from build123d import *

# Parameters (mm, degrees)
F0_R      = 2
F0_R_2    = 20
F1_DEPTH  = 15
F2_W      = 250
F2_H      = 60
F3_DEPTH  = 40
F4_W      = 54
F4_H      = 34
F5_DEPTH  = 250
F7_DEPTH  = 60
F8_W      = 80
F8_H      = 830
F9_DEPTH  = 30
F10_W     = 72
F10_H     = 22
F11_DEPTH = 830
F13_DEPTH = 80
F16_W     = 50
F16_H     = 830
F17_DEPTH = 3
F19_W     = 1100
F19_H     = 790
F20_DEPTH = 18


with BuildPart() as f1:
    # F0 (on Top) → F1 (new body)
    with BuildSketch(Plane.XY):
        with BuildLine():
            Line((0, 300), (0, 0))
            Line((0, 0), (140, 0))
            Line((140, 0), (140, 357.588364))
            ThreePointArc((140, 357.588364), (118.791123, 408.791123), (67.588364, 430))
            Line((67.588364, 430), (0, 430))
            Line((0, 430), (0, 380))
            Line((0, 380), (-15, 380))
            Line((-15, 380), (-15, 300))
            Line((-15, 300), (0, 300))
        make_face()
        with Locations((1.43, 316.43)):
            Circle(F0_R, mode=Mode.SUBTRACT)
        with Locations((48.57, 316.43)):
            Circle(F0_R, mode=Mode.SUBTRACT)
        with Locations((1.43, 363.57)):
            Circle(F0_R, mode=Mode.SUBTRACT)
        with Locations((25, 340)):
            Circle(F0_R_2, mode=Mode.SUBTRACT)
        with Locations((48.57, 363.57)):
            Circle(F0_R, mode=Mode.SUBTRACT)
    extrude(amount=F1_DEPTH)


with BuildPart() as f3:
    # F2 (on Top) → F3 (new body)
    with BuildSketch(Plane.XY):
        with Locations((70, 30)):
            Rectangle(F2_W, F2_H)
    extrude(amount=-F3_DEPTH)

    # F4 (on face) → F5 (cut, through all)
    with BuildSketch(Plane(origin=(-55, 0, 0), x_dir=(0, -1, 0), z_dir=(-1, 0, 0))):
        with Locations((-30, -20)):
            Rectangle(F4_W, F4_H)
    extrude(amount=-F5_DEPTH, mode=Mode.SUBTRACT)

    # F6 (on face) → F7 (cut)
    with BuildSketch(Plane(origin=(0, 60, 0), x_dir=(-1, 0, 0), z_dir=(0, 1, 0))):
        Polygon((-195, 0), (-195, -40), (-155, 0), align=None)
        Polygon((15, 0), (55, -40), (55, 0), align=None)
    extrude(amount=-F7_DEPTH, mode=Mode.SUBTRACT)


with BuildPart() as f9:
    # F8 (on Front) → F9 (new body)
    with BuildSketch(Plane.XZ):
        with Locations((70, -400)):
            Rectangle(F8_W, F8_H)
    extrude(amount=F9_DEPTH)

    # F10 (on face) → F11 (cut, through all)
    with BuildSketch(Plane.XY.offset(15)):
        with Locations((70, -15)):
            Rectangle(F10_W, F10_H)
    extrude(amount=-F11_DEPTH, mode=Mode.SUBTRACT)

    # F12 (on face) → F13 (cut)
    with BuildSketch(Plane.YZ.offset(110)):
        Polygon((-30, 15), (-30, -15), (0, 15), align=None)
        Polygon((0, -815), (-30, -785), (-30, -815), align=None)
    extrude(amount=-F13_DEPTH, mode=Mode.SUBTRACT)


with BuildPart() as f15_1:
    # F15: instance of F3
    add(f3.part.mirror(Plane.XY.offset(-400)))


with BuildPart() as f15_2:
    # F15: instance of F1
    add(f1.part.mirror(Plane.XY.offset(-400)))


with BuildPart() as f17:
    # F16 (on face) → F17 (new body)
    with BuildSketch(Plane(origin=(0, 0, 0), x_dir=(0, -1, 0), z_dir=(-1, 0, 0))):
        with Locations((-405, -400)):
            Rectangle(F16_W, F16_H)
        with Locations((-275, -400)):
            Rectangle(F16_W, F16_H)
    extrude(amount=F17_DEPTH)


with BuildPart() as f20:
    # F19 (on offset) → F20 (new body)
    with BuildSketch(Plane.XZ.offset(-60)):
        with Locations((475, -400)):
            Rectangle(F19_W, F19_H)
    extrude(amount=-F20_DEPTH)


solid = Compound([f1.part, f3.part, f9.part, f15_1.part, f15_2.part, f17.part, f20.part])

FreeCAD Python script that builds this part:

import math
import FreeCAD as App
import Part
import Sketcher

doc = App.newDocument("Part")
body = doc.addObject("PartDesign::Body", "Body")

# Sketch on XY plane
sketch1 = doc.addObject("Sketcher::SketchObject", "Sketch")
body.addObject(sketch1)
sketch1.AttachmentSupport = (doc.XY_Plane, [""])
sketch1.MapMode = "FlatFace"
sketch1.addGeometry(Part.LineSegment(App.Vector(0, 300, 0), App.Vector(0, 0, 0)), False)
sketch1.addGeometry(Part.LineSegment(App.Vector(0, 0, 0), App.Vector(140, 0, 0)), False)
sketch1.addGeometry(Part.LineSegment(App.Vector(140, 0, 0), App.Vector(140, 357.6, 0)), False)
sketch1.addGeometry(Part.ArcOfCircle(Part.Circle(App.Vector(67.6, 357.6, 0), App.Vector(0, 0, 1), 72.4), math.radians(0), math.radians(90)), False)
sketch1.addGeometry(Part.LineSegment(App.Vector(67.6, 430, 0), App.Vector(0, 430, 0)), False)
sketch1.addGeometry(Part.LineSegment(App.Vector(0, 430, 0), App.Vector(0, 380, 0)), False)
sketch1.addGeometry(Part.LineSegment(App.Vector(0, 380, 0), App.Vector(-15, 380, 0)), False)
sketch1.addGeometry(Part.LineSegment(App.Vector(-15, 380, 0), App.Vector(-15, 300, 0)), False)
sketch1.addGeometry(Part.LineSegment(App.Vector(-15, 300, 0), App.Vector(0, 300, 0)), False)
sketch1.addGeometry(Part.Circle(App.Vector(1.4, 316.4, 0), App.Vector(0, 0, 1), 2), False)
sketch1.addGeometry(Part.Circle(App.Vector(48.6, 316.4, 0), App.Vector(0, 0, 1), 2), False)
sketch1.addGeometry(Part.Circle(App.Vector(25, 340, 0), App.Vector(0, 0, 1), 20), False)
sketch1.addGeometry(Part.Circle(App.Vector(1.4, 363.6, 0), App.Vector(0, 0, 1), 2), False)
sketch1.addGeometry(Part.Circle(App.Vector(48.6, 363.6, 0), App.Vector(0, 0, 1), 2), False)
sketch1.addConstraint(Sketcher.Constraint("Coincident", 0, 2, 1, 1))
sketch1.addConstraint(Sketcher.Constraint("Coincident", 1, 2, 2, 1))
sketch1.addConstraint(Sketcher.Constraint("Tangent", 2, 2, 3, 1))
sketch1.addConstraint(Sketcher.Constraint("Tangent", 3, 2, 4, 1))
sketch1.addConstraint(Sketcher.Constraint("Coincident", 4, 2, 5, 1))
sketch1.addConstraint(Sketcher.Constraint("Coincident", 5, 2, 6, 1))
sketch1.addConstraint(Sketcher.Constraint("Coincident", 6, 2, 7, 1))
sketch1.addConstraint(Sketcher.Constraint("Coincident", 7, 2, 8, 1))
sketch1.addConstraint(Sketcher.Constraint("Coincident", 8, 2, 0, 1))
sketch1.addConstraint(Sketcher.Constraint("Vertical", 0))
sketch1.addConstraint(Sketcher.Constraint("Horizontal", 1))
sketch1.addConstraint(Sketcher.Constraint("Vertical", 2))
sketch1.addConstraint(Sketcher.Constraint("Horizontal", 4))
sketch1.addConstraint(Sketcher.Constraint("Vertical", 5))
sketch1.addConstraint(Sketcher.Constraint("Horizontal", 6))
sketch1.addConstraint(Sketcher.Constraint("Vertical", 7))
sketch1.addConstraint(Sketcher.Constraint("Horizontal", 8))
sketch1.addConstraint(Sketcher.Constraint("Coincident", 0, 2, -1, 1))
sketch1.addConstraint(Sketcher.Constraint("Equal", 9, 10))
sketch1.addConstraint(Sketcher.Constraint("Equal", 10, 12))
sketch1.addConstraint(Sketcher.Constraint("Equal", 12, 13))
sketch1.addConstraint(Sketcher.Constraint("PointOnObject", 4, 2, -2))
sketch1.addConstraint(Sketcher.Constraint("Horizontal", 9, 3, 10, 3))
sketch1.addConstraint(Sketcher.Constraint("Horizontal", 12, 3, 13, 3))
sketch1.addConstraint(Sketcher.Constraint("Vertical", 9, 3, 12, 3))
sketch1.addConstraint(Sketcher.Constraint("Vertical", 10, 3, 13, 3))
sketch1.addConstraint(Sketcher.Constraint("Diameter", 9, 4.0))
sketch1.addConstraint(Sketcher.Constraint("Diameter", 11, 40.0))
sketch1.addConstraint(Sketcher.Constraint("DistanceX", 1, 1, 1, 2, 140.0))
sketch1.addConstraint(Sketcher.Constraint("DistanceX", 6, 2, 6, 1, 15.0))
sketch1.addConstraint(Sketcher.Constraint("DistanceY", 0, 2, 0, 1, 300.0))
sketch1.addConstraint(Sketcher.Constraint("DistanceY", 5, 2, 5, 1, 50.0))
sketch1.addConstraint(Sketcher.Constraint("DistanceY", 7, 2, 7, 1, 80.0))
sketch1.addConstraint(Sketcher.Constraint("DistanceX", -1, 1, 11, 3, 25.0))
sketch1.addConstraint(Sketcher.Constraint("DistanceY", -1, 1, 11, 3, 340.0))
sketch1.addConstraint(Sketcher.Constraint("DistanceX", -1, 1, 9, 3, 1.43))
sketch1.addConstraint(Sketcher.Constraint("DistanceY", -1, 1, 9, 3, 316.43))
sketch1.addConstraint(Sketcher.Constraint("DistanceX", -1, 1, 10, 3, 48.57))
sketch1.addConstraint(Sketcher.Constraint("DistanceY", -1, 1, 12, 3, 363.57))
sketch1.addConstraint(Sketcher.Constraint("Radius", 3, 72.411635))
pad1 = doc.addObject("PartDesign::Pad", "Pad")
body.addObject(pad1)
pad1.Profile = sketch1
pad1.Length = 15
body2 = doc.addObject("PartDesign::Body", "Body001")

# Sketch on XY plane
sketch2 = doc.addObject("Sketcher::SketchObject", "Sketch001")
body2.addObject(sketch2)
sketch2.AttachmentSupport = (doc.getObject("XY_Plane001"), [""])
sketch2.MapMode = "FlatFace"
sketch2.addGeometry(Part.LineSegment(App.Vector(-55, 60, 0), App.Vector(-55, 0, 0)), False)
sketch2.addGeometry(Part.LineSegment(App.Vector(-55, 0, 0), App.Vector(195, 0, 0)), False)
sketch2.addGeometry(Part.LineSegment(App.Vector(195, 0, 0), App.Vector(195, 60, 0)), False)
sketch2.addGeometry(Part.LineSegment(App.Vector(195, 60, 0), App.Vector(-55, 60, 0)), False)
sketch2.addConstraint(Sketcher.Constraint("Coincident", 0, 2, 1, 1))
sketch2.addConstraint(Sketcher.Constraint("Coincident", 1, 2, 2, 1))
sketch2.addConstraint(Sketcher.Constraint("Coincident", 2, 2, 3, 1))
sketch2.addConstraint(Sketcher.Constraint("Coincident", 3, 2, 0, 1))
sketch2.addConstraint(Sketcher.Constraint("Vertical", 0))
sketch2.addConstraint(Sketcher.Constraint("Horizontal", 1))
sketch2.addConstraint(Sketcher.Constraint("Vertical", 2))
sketch2.addConstraint(Sketcher.Constraint("Horizontal", 3))
sketch2.addConstraint(Sketcher.Constraint("PointOnObject", 0, 2, -1))
sketch2.addConstraint(Sketcher.Constraint("DistanceX", 1, 1, 1, 2, 250.0))
sketch2.addConstraint(Sketcher.Constraint("DistanceY", 0, 2, 0, 1, 60.0))
sketch2.addConstraint(Sketcher.Constraint("DistanceX", 0, 2, -1, 1, 55.0))
pad2 = doc.addObject("PartDesign::Pad", "Pad001")
body2.addObject(pad2)
pad2.Profile = sketch2
pad2.Length = 40
pad2.Reversed = True

# Sketch on YZ plane
sketch3 = doc.addObject("Sketcher::SketchObject", "Sketch002")
body2.addObject(sketch3)
sketch3.AttachmentSupport = (doc.getObject("YZ_Plane001"), [""])
sketch3.MapMode = "FlatFace"
sketch3.AttachmentOffset = App.Placement(App.Vector(0, 0, -55), App.Rotation())
sketch3.addGeometry(Part.LineSegment(App.Vector(57, -3, 0), App.Vector(57, -37, 0)), False)
sketch3.addGeometry(Part.LineSegment(App.Vector(57, -37, 0), App.Vector(3, -37, 0)), False)
sketch3.addGeometry(Part.LineSegment(App.Vector(3, -37, 0), App.Vector(3, -3, 0)), False)
sketch3.addGeometry(Part.LineSegment(App.Vector(3, -3, 0), App.Vector(57, -3, 0)), False)
sketch3.addConstraint(Sketcher.Constraint("Coincident", 0, 2, 1, 1))
sketch3.addConstraint(Sketcher.Constraint("Coincident", 1, 2, 2, 1))
sketch3.addConstraint(Sketcher.Constraint("Coincident", 2, 2, 3, 1))
sketch3.addConstraint(Sketcher.Constraint("Coincident", 3, 2, 0, 1))
sketch3.addConstraint(Sketcher.Constraint("Vertical", 0))
sketch3.addConstraint(Sketcher.Constraint("Horizontal", 1))
sketch3.addConstraint(Sketcher.Constraint("Vertical", 2))
sketch3.addConstraint(Sketcher.Constraint("Horizontal", 3))
sketch3.addConstraint(Sketcher.Constraint("DistanceX", 1, 2, 1, 1, 54.0))
sketch3.addConstraint(Sketcher.Constraint("DistanceY", 0, 2, 0, 1, 34.0))
sketch3.addConstraint(Sketcher.Constraint("DistanceX", -1, 1, 0, 2, 57.0))
sketch3.addConstraint(Sketcher.Constraint("DistanceY", 0, 2, -1, 1, 37.0))
pocket1 = doc.addObject("PartDesign::Pocket", "Pocket")
body2.addObject(pocket1)
pocket1.Profile = sketch3
pocket1.Type = "ThroughAll"
pocket1.Reversed = True

# Sketch on XZ plane
sketch4 = doc.addObject("Sketcher::SketchObject", "Sketch003")
body2.addObject(sketch4)
sketch4.AttachmentSupport = (doc.getObject("XZ_Plane001"), [""])
sketch4.MapMode = "FlatFace"
sketch4.AttachmentOffset = App.Placement(App.Vector(0, 0, -60), App.Rotation())
sketch4.addGeometry(Part.LineSegment(App.Vector(195, 0, 0), App.Vector(195, -40, 0)), False)
sketch4.addGeometry(Part.LineSegment(App.Vector(195, -40, 0), App.Vector(155, 0, 0)), False)
sketch4.addGeometry(Part.LineSegment(App.Vector(155, 0, 0), App.Vector(195, 0, 0)), False)
sketch4.addGeometry(Part.LineSegment(App.Vector(-15, 0, 0), App.Vector(-55, -40, 0)), False)
sketch4.addGeometry(Part.LineSegment(App.Vector(-55, -40, 0), App.Vector(-55, 0, 0)), False)
sketch4.addGeometry(Part.LineSegment(App.Vector(-55, 0, 0), App.Vector(-15, 0, 0)), False)
sketch4.addConstraint(Sketcher.Constraint("Coincident", 0, 2, 1, 1))
sketch4.addConstraint(Sketcher.Constraint("Coincident", 1, 2, 2, 1))
sketch4.addConstraint(Sketcher.Constraint("Coincident", 2, 2, 0, 1))
sketch4.addConstraint(Sketcher.Constraint("Coincident", 3, 2, 4, 1))
sketch4.addConstraint(Sketcher.Constraint("Coincident", 4, 2, 5, 1))
sketch4.addConstraint(Sketcher.Constraint("Coincident", 5, 2, 3, 1))
sketch4.addConstraint(Sketcher.Constraint("Vertical", 0))
sketch4.addConstraint(Sketcher.Constraint("Horizontal", 2))
sketch4.addConstraint(Sketcher.Constraint("Vertical", 4))
sketch4.addConstraint(Sketcher.Constraint("Horizontal", 5))
sketch4.addConstraint(Sketcher.Constraint("PointOnObject", 1, 2, -1))
sketch4.addConstraint(Sketcher.Constraint("PointOnObject", 4, 2, -1))
sketch4.addConstraint(Sketcher.Constraint("Perpendicular", 1, 3))
sketch4.addConstraint(Sketcher.Constraint("Horizontal", 0, 2, 3, 2))
sketch4.addConstraint(Sketcher.Constraint("Equal", 2, 5))
sketch4.addConstraint(Sketcher.Constraint("DistanceX", 2, 1, 2, 2, 40.0))
sketch4.addConstraint(Sketcher.Constraint("DistanceX", -1, 1, 0, 2, 195.0))
sketch4.addConstraint(Sketcher.Constraint("DistanceX", 3, 2, -1, 1, 55.0))
pocket2 = doc.addObject("PartDesign::Pocket", "Pocket001")
body2.addObject(pocket2)
pocket2.Profile = sketch4
pocket2.Length = 60
pocket2.Reversed = True
body3 = doc.addObject("PartDesign::Body", "Body002")

# Sketch on XZ plane
sketch5 = doc.addObject("Sketcher::SketchObject", "Sketch004")
body3.addObject(sketch5)
sketch5.AttachmentSupport = (doc.getObject("XZ_Plane002"), [""])
sketch5.MapMode = "FlatFace"
sketch5.addGeometry(Part.LineSegment(App.Vector(30, 15, 0), App.Vector(30, -815, 0)), False)
sketch5.addGeometry(Part.LineSegment(App.Vector(30, -815, 0), App.Vector(110, -815, 0)), False)
sketch5.addGeometry(Part.LineSegment(App.Vector(110, -815, 0), App.Vector(110, 15, 0)), False)
sketch5.addGeometry(Part.LineSegment(App.Vector(110, 15, 0), App.Vector(30, 15, 0)), False)
sketch5.addConstraint(Sketcher.Constraint("Coincident", 0, 2, 1, 1))
sketch5.addConstraint(Sketcher.Constraint("Coincident", 1, 2, 2, 1))
sketch5.addConstraint(Sketcher.Constraint("Coincident", 2, 2, 3, 1))
sketch5.addConstraint(Sketcher.Constraint("Coincident", 3, 2, 0, 1))
sketch5.addConstraint(Sketcher.Constraint("Vertical", 0))
sketch5.addConstraint(Sketcher.Constraint("Horizontal", 1))
sketch5.addConstraint(Sketcher.Constraint("Vertical", 2))
sketch5.addConstraint(Sketcher.Constraint("Horizontal", 3))
sketch5.addConstraint(Sketcher.Constraint("DistanceX", 1, 1, 1, 2, 80.0))
sketch5.addConstraint(Sketcher.Constraint("DistanceY", 0, 2, 0, 1, 830.0))
sketch5.addConstraint(Sketcher.Constraint("DistanceX", -1, 1, 0, 2, 30.0))
sketch5.addConstraint(Sketcher.Constraint("DistanceY", 0, 2, -1, 1, 815.0))
pad3 = doc.addObject("PartDesign::Pad", "Pad002")
body3.addObject(pad3)
pad3.Profile = sketch5
pad3.Length = 30

# Sketch on XY plane
sketch6 = doc.addObject("Sketcher::SketchObject", "Sketch005")
body3.addObject(sketch6)
sketch6.AttachmentSupport = (doc.getObject("XY_Plane002"), [""])
sketch6.MapMode = "FlatFace"
sketch6.AttachmentOffset = App.Placement(App.Vector(0, 0, 15), App.Rotation())
sketch6.addGeometry(Part.LineSegment(App.Vector(34, -4, 0), App.Vector(34, -26, 0)), False)
sketch6.addGeometry(Part.LineSegment(App.Vector(34, -26, 0), App.Vector(106, -26, 0)), False)
sketch6.addGeometry(Part.LineSegment(App.Vector(106, -26, 0), App.Vector(106, -4, 0)), False)
sketch6.addGeometry(Part.LineSegment(App.Vector(106, -4, 0), App.Vector(34, -4, 0)), False)
sketch6.addConstraint(Sketcher.Constraint("Coincident", 0, 2, 1, 1))
sketch6.addConstraint(Sketcher.Constraint("Coincident", 1, 2, 2, 1))
sketch6.addConstraint(Sketcher.Constraint("Coincident", 2, 2, 3, 1))
sketch6.addConstraint(Sketcher.Constraint("Coincident", 3, 2, 0, 1))
sketch6.addConstraint(Sketcher.Constraint("Vertical", 0))
sketch6.addConstraint(Sketcher.Constraint("Horizontal", 1))
sketch6.addConstraint(Sketcher.Constraint("Vertical", 2))
sketch6.addConstraint(Sketcher.Constraint("Horizontal", 3))
sketch6.addConstraint(Sketcher.Constraint("DistanceX", 1, 1, 1, 2, 72.0))
sketch6.addConstraint(Sketcher.Constraint("DistanceY", 0, 2, 0, 1, 22.0))
sketch6.addConstraint(Sketcher.Constraint("DistanceX", -1, 1, 0, 2, 34.0))
sketch6.addConstraint(Sketcher.Constraint("DistanceY", 0, 2, -1, 1, 26.0))
pocket3 = doc.addObject("PartDesign::Pocket", "Pocket002")
body3.addObject(pocket3)
pocket3.Profile = sketch6
pocket3.Type = "ThroughAll"

# Sketch on YZ plane
sketch7 = doc.addObject("Sketcher::SketchObject", "Sketch006")
body3.addObject(sketch7)
sketch7.AttachmentSupport = (doc.getObject("YZ_Plane002"), [""])
sketch7.MapMode = "FlatFace"
sketch7.AttachmentOffset = App.Placement(App.Vector(0, 0, 110), App.Rotation())
sketch7.addGeometry(Part.LineSegment(App.Vector(-30, 15, 0), App.Vector(-30, -15, 0)), False)
sketch7.addGeometry(Part.LineSegment(App.Vector(-30, -15, 0), App.Vector(0, 15, 0)), False)
sketch7.addGeometry(Part.LineSegment(App.Vector(0, 15, 0), App.Vector(-30, 15, 0)), False)
sketch7.addGeometry(Part.LineSegment(App.Vector(0, -815, 0), App.Vector(-30, -785, 0)), False)
sketch7.addGeometry(Part.LineSegment(App.Vector(-30, -785, 0), App.Vector(-30, -815, 0)), False)
sketch7.addGeometry(Part.LineSegment(App.Vector(-30, -815, 0), App.Vector(0, -815, 0)), False)
sketch7.addConstraint(Sketcher.Constraint("Coincident", 0, 2, 1, 1))
sketch7.addConstraint(Sketcher.Constraint("Coincident", 1, 2, 2, 1))
sketch7.addConstraint(Sketcher.Constraint("Coincident", 2, 2, 0, 1))
sketch7.addConstraint(Sketcher.Constraint("Coincident", 3, 2, 4, 1))
sketch7.addConstraint(Sketcher.Constraint("Coincident", 4, 2, 5, 1))
sketch7.addConstraint(Sketcher.Constraint("Coincident", 5, 2, 3, 1))
sketch7.addConstraint(Sketcher.Constraint("Vertical", 0))
sketch7.addConstraint(Sketcher.Constraint("Horizontal", 2))
sketch7.addConstraint(Sketcher.Constraint("Vertical", 4))
sketch7.addConstraint(Sketcher.Constraint("Horizontal", 5))
sketch7.addConstraint(Sketcher.Constraint("PointOnObject", 1, 2, -2))
sketch7.addConstraint(Sketcher.Constraint("PointOnObject", 5, 2, -2))
sketch7.addConstraint(Sketcher.Constraint("Perpendicular", 1, 3))
sketch7.addConstraint(Sketcher.Constraint("Vertical", 2, 2, 3, 2))
sketch7.addConstraint(Sketcher.Constraint("Equal", 5, 0))
sketch7.addConstraint(Sketcher.Constraint("DistanceX", 2, 2, 2, 1, 30.0))
sketch7.addConstraint(Sketcher.Constraint("DistanceY", 0, 2, -1, 1, 15.0))
sketch7.addConstraint(Sketcher.Constraint("DistanceY", 3, 2, -1, 1, 785.0))
pocket4 = doc.addObject("PartDesign::Pocket", "Pocket003")
body3.addObject(pocket4)
pocket4.Profile = sketch7
pocket4.Length = 80
body4 = doc.addObject("PartDesign::Body", "Body003")
doc.recompute()

mirroring = doc.addObject("Part::Mirroring", "Mirroring")
mirroring.Source = body2
mirroring.Base = App.Vector(0, 0, -400)
mirroring.Normal = App.Vector(0, 0, 1)
body4.BaseFeature = mirroring
doc.recompute()
body5 = doc.addObject("PartDesign::Body", "Body004")
doc.recompute()

mirroring2 = doc.addObject("Part::Mirroring", "Mirroring001")
mirroring2.Source = body
mirroring2.Base = App.Vector(0, 0, -400)
mirroring2.Normal = App.Vector(0, 0, 1)
body5.BaseFeature = mirroring2
doc.recompute()
body6 = doc.addObject("PartDesign::Body", "Body005")
body6.AllowCompound = True

# Sketch on YZ plane
sketch8 = doc.addObject("Sketcher::SketchObject", "Sketch007")
body6.addObject(sketch8)
sketch8.AttachmentSupport = (doc.getObject("YZ_Plane005"), [""])
sketch8.MapMode = "FlatFace"
sketch8.addGeometry(Part.LineSegment(App.Vector(430, 15, 0), App.Vector(430, -815, 0)), False)
sketch8.addGeometry(Part.LineSegment(App.Vector(430, -815, 0), App.Vector(380, -815, 0)), False)
sketch8.addGeometry(Part.LineSegment(App.Vector(380, -815, 0), App.Vector(380, 15, 0)), False)
sketch8.addGeometry(Part.LineSegment(App.Vector(380, 15, 0), App.Vector(430, 15, 0)), False)
sketch8.addGeometry(Part.LineSegment(App.Vector(300, 15, 0), App.Vector(300, -815, 0)), False)
sketch8.addGeometry(Part.LineSegment(App.Vector(300, -815, 0), App.Vector(250, -815, 0)), False)
sketch8.addGeometry(Part.LineSegment(App.Vector(250, -815, 0), App.Vector(250, 15, 0)), False)
sketch8.addGeometry(Part.LineSegment(App.Vector(250, 15, 0), App.Vector(300, 15, 0)), False)
sketch8.addConstraint(Sketcher.Constraint("Coincident", 0, 2, 1, 1))
sketch8.addConstraint(Sketcher.Constraint("Coincident", 1, 2, 2, 1))
sketch8.addConstraint(Sketcher.Constraint("Coincident", 2, 2, 3, 1))
sketch8.addConstraint(Sketcher.Constraint("Coincident", 3, 2, 0, 1))
sketch8.addConstraint(Sketcher.Constraint("Coincident", 4, 2, 5, 1))
sketch8.addConstraint(Sketcher.Constraint("Coincident", 5, 2, 6, 1))
sketch8.addConstraint(Sketcher.Constraint("Coincident", 6, 2, 7, 1))
sketch8.addConstraint(Sketcher.Constraint("Coincident", 7, 2, 4, 1))
sketch8.addConstraint(Sketcher.Constraint("Vertical", 0))
sketch8.addConstraint(Sketcher.Constraint("Horizontal", 1))
sketch8.addConstraint(Sketcher.Constraint("Vertical", 2))
sketch8.addConstraint(Sketcher.Constraint("Horizontal", 3))
sketch8.addConstraint(Sketcher.Constraint("Vertical", 4))
sketch8.addConstraint(Sketcher.Constraint("Horizontal", 5))
sketch8.addConstraint(Sketcher.Constraint("Vertical", 6))
sketch8.addConstraint(Sketcher.Constraint("Horizontal", 7))
sketch8.addConstraint(Sketcher.Constraint("Horizontal", 1, 2, 4, 2))
sketch8.addConstraint(Sketcher.Constraint("Horizontal", 3, 2, 6, 2))
sketch8.addConstraint(Sketcher.Constraint("Equal", 3, 5))
sketch8.addConstraint(Sketcher.Constraint("DistanceX", 1, 2, 1, 1, 50.0))
sketch8.addConstraint(Sketcher.Constraint("DistanceY", 0, 2, 0, 1, 830.0))
sketch8.addConstraint(Sketcher.Constraint("DistanceX", -1, 1, 0, 2, 430.0))
sketch8.addConstraint(Sketcher.Constraint("DistanceY", 0, 2, -1, 1, 815.0))
sketch8.addConstraint(Sketcher.Constraint("DistanceX", -1, 1, 4, 2, 300.0))
pad4 = doc.addObject("PartDesign::Pad", "Pad003")
body6.addObject(pad4)
pad4.Profile = sketch8
pad4.Length = 3
pad4.Reversed = True
body7 = doc.addObject("PartDesign::Body", "Body006")

# Sketch on XZ plane
sketch9 = doc.addObject("Sketcher::SketchObject", "Sketch008")
body7.addObject(sketch9)
sketch9.AttachmentSupport = (doc.getObject("XZ_Plane006"), [""])
sketch9.MapMode = "FlatFace"
sketch9.AttachmentOffset = App.Placement(App.Vector(0, 0, -60), App.Rotation())
sketch9.addGeometry(Part.LineSegment(App.Vector(-75, -5, 0), App.Vector(-75, -795, 0)), False)
sketch9.addGeometry(Part.LineSegment(App.Vector(-75, -795, 0), App.Vector(1025, -795, 0)), False)
sketch9.addGeometry(Part.LineSegment(App.Vector(1025, -795, 0), App.Vector(1025, -5, 0)), False)
sketch9.addGeometry(Part.LineSegment(App.Vector(1025, -5, 0), App.Vector(-75, -5, 0)), False)
sketch9.addConstraint(Sketcher.Constraint("Coincident", 0, 2, 1, 1))
sketch9.addConstraint(Sketcher.Constraint("Coincident", 1, 2, 2, 1))
sketch9.addConstraint(Sketcher.Constraint("Coincident", 2, 2, 3, 1))
sketch9.addConstraint(Sketcher.Constraint("Coincident", 3, 2, 0, 1))
sketch9.addConstraint(Sketcher.Constraint("Vertical", 0))
sketch9.addConstraint(Sketcher.Constraint("Horizontal", 1))
sketch9.addConstraint(Sketcher.Constraint("Vertical", 2))
sketch9.addConstraint(Sketcher.Constraint("Horizontal", 3))
sketch9.addConstraint(Sketcher.Constraint("DistanceX", 1, 1, 1, 2, 1100.0))
sketch9.addConstraint(Sketcher.Constraint("DistanceY", 0, 2, 0, 1, 790.0))
sketch9.addConstraint(Sketcher.Constraint("DistanceX", 0, 2, -1, 1, 75.0))
sketch9.addConstraint(Sketcher.Constraint("DistanceY", 0, 2, -1, 1, 795.0))
pad5 = doc.addObject("PartDesign::Pad", "Pad004")
body7.addObject(pad5)
pad5.Profile = sketch9
pad5.Length = 18
pad5.Reversed = True
mirroring.Visibility = False
mirroring2.Visibility = False

doc.recompute()
